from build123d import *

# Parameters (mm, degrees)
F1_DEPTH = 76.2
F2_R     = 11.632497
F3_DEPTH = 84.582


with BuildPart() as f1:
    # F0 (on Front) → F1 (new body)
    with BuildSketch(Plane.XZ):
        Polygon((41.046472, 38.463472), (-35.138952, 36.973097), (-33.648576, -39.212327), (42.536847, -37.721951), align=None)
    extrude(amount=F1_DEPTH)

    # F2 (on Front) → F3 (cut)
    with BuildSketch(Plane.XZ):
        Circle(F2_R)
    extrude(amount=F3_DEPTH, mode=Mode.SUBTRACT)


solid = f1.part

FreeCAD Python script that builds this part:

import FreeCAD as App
import Part
import Sketcher
from FreeCAD import Vector
Q = App.Units.Quantity

doc = App.newDocument("Part")
body = doc.addObject("PartDesign::Body", "Body")

# Sketch on XZ plane
sketch1 = body.newObject("Sketcher::SketchObject", "Sketch")
sketch1.AttachmentSupport = (doc.getObject("XZ_Plane"), [""])
sketch1.MapMode = "FlatFace"
sketch1.addGeometry(Part.LineSegment(Vector(41.046472, 38.463472, 0), Vector(-35.138952, 36.973097, 0)), False)
sketch1.addGeometry(Part.LineSegment(Vector(-35.138952, 36.973097, 0), Vector(-33.648576, -39.212327, 0)), False)
sketch1.addGeometry(Part.LineSegment(Vector(-33.648576, -39.212327, 0), Vector(42.536847, -37.721951, 0)), False)
sketch1.addGeometry(Part.LineSegment(Vector(42.536847, -37.721951, 0), Vector(41.046472, 38.463472, 0)), False)
sketch1.addConstraint(Sketcher.Constraint("Coincident", 0, 2, 1, 1))
sketch1.addConstraint(Sketcher.Constraint("Coincident", 1, 2, 2, 1))
sketch1.addConstraint(Sketcher.Constraint("Coincident", 2, 2, 3, 1))
sketch1.addConstraint(Sketcher.Constraint("Coincident", 3, 2, 0, 1))
sketch1.addConstraint(Sketcher.Constraint("Perpendicular", 0, 1))
sketch1.addConstraint(Sketcher.Constraint("Perpendicular", 1, 2))
sketch1.addConstraint(Sketcher.Constraint("Perpendicular", 2, 3))
sketch1.addConstraint(Sketcher.Constraint("Equal", 0, 1))
sketch1.addConstraint(Sketcher.Constraint("Distance", 0, Q("3 in")))
sketch1.addConstraint(Sketcher.Constraint("DistanceX", 0, 2, 2, 2, Q("77.675799 mm")))
sketch1.addConstraint(Sketcher.Constraint("DistanceY", 2, 2, -1, 1, Q("37.721951 mm")))
sketch1.addConstraint(Sketcher.Constraint("DistanceX", 0, 2, -1, 1, Q("35.138952 mm")))
pad1 = body.newObject("PartDesign::Pad", "Pad")
pad1.Profile = sketch1
pad1.Length = Q("3 in")

# Sketch on XZ plane
sketch2 = body.newObject("Sketcher::SketchObject", "Sketch001")
sketch2.AttachmentSupport = (doc.getObject("XZ_Plane"), [""])
sketch2.MapMode = "FlatFace"
sketch2.addGeometry(Part.Circle(Vector(0, 0, 0), Vector(0, 0, 1), 11.632497), False)
sketch2.addConstraint(Sketcher.Constraint("Coincident", 0, 3, -1, 1))
sketch2.addConstraint(Sketcher.Constraint("Diameter", 0, Q("23.264994 mm")))
pocket1 = body.newObject("PartDesign::Pocket", "Pocket")
pocket1.Profile = sketch2
pocket1.Length = Q("3.33 in")
pocket1.Reversed = True

doc.recompute()
